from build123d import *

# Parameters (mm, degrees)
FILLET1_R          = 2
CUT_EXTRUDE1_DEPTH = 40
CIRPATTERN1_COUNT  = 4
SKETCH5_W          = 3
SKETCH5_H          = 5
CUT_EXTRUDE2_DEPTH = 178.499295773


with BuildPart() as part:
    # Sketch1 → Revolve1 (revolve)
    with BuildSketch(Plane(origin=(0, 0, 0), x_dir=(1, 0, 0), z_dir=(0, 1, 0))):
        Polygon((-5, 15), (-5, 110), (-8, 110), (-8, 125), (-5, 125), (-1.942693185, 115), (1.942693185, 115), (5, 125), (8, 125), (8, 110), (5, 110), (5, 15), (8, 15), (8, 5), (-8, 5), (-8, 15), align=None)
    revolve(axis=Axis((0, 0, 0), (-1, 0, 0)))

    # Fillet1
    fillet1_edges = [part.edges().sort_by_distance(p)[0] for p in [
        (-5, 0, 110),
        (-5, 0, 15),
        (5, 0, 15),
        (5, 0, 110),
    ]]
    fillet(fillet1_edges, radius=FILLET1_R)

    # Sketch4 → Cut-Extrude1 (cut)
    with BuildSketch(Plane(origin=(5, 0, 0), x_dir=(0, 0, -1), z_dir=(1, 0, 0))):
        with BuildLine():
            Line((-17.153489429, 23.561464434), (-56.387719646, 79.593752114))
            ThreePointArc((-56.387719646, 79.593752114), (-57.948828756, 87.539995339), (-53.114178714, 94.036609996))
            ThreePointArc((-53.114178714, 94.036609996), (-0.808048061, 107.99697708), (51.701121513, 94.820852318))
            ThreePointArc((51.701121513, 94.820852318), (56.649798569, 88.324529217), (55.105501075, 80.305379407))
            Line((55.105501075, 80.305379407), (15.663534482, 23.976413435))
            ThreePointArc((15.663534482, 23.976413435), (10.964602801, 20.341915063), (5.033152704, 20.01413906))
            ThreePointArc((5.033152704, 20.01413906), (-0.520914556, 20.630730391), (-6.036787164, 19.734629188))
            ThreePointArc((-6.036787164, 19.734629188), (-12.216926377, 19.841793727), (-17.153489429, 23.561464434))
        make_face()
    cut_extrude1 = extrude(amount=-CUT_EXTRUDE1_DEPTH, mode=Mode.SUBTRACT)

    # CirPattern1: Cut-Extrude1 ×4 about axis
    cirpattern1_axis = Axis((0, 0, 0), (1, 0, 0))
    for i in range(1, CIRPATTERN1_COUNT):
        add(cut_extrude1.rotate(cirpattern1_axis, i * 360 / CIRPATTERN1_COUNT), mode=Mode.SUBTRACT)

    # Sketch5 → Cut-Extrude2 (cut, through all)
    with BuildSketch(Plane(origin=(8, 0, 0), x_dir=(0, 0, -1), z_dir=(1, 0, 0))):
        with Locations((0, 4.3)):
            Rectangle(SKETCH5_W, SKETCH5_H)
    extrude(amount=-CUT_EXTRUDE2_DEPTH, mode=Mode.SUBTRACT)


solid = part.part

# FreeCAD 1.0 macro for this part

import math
import FreeCAD as App
import Part
import Sketcher
Q = App.Units.Quantity


def edges_at(feature, points):
    """Names of the edges that pass closest to the given points."""
    edges = feature.Shape.Edges
    near = lambda p: min(range(len(edges)), key=lambda i: edges[i].distToShape(Part.Vertex(*p))[0])
    return sorted({f"Edge{near(p) + 1}" for p in points})


def add_polygon(sketch, points):
    """Adds a closed chain of lines whose ends are joined by coincident constraints."""
    first, n = sketch.GeometryCount, len(points)
    for a, b in zip(points, points[1:] + points[:1]):
        sketch.addGeometry(Part.LineSegment(App.Vector(*a, 0), App.Vector(*b, 0)), False)
    for i in range(n):
        sketch.addConstraint(Sketcher.Constraint("Coincident", first + i, 2, first + (i + 1) % n, 1))

doc = App.newDocument("Part")
params = doc.addObject("Spreadsheet::Sheet", "Params")
for row, (alias, value) in enumerate([
    ("sketch1_width", "3 mm"),
    ("sketch1_width2", "16 mm"),
    ("sketch1_height", "95 mm"),
    ("sketch1_height2", "10 mm"),
    ("sketch1_height3", "15 mm"),
    ("revolution_angle", "360 deg"),
    ("fillet_radius", "2 mm"),
    ("sketch2_radius", "10 mm"),
    ("sketch2_radius2", "108 mm"),
    ("pocket1_length", "40 mm"),
    ("sketch3_width", "5 mm"),
    ("sketch3_height", "3 mm"),
], start=1):
    params.set(f"A{row}", alias)
    params.set(f"B{row}", "=" + value)
    params.setAlias(f"B{row}", alias)

body = doc.addObject("PartDesign::Body", "Body")

# Sketch on XZ plane
sketch1 = doc.addObject("Sketcher::SketchObject", "Sketch")
body.addObject(sketch1)
sketch1.AttachmentSupport = (doc.XZ_Plane, [""])
sketch1.MapMode = "FlatFace"
add_polygon(sketch1, [(-5, -110), (-5, -15), (-8, -15), (-8, -5), (8, -5), (8, -15), (5, -15), (5, -110), (8, -110), (8, -125), (5, -125), (1.9, -115), (-1.9, -115), (-5, -125), (-8, -125), (-8, -110)])  # lines 0-15
sketch1.addConstraint([
    Sketcher.Constraint("Vertical", 0),
    Sketcher.Constraint("Horizontal", 1),
    Sketcher.Constraint("Vertical", 2),
    Sketcher.Constraint("Horizontal", 3),
    Sketcher.Constraint("Vertical", 4),
    Sketcher.Constraint("Horizontal", 5),
    Sketcher.Constraint("Vertical", 6),
    Sketcher.Constraint("Horizontal", 7),
    Sketcher.Constraint("Vertical", 8),
    Sketcher.Constraint("Horizontal", 9),
    Sketcher.Constraint("Horizontal", 11),
    Sketcher.Constraint("Horizontal", 13),
    Sketcher.Constraint("Vertical", 14),
    Sketcher.Constraint("Horizontal", 15),
    Sketcher.Constraint("Symmetric", 1, 2, 4, 2, -2),
    Sketcher.Constraint("Symmetric", 9, 2, 12, 2, -2),
    Sketcher.Constraint("Symmetric", 7, 2, 14, 2, -2),
    Sketcher.Constraint("Vertical", 4, 2, 7, 2),
    Sketcher.Constraint("Vertical", 6, 2, 9, 2),
    Sketcher.Constraint("Vertical", 0, 2, 12, 2),
    Sketcher.Constraint("Equal", 10, 12),
    Sketcher.Constraint("DistanceX", 1, 2, 1, 1, Q("3 mm")),
    Sketcher.Constraint("DistanceX", 3, 1, 3, 2, Q("16 mm")),
    Sketcher.Constraint("DistanceY", 0, 1, 0, 2, Q("95 mm")),
    Sketcher.Constraint("DistanceY", 2, 1, 2, 2, Q("10 mm")),
    Sketcher.Constraint("DistanceY", 8, 2, 8, 1, Q("15 mm")),
    Sketcher.Constraint("Angle", 10, Q("107 deg")),
    Sketcher.Constraint("DistanceY", 0, 2, -1, 1, Q("15 mm")),
    Sketcher.Constraint("DistanceY", 10, 2, -1, 1, Q("115 mm")),
])
sketch1.setExpression("Constraints[37]", "Params.sketch1_width")
sketch1.setExpression("Constraints[38]", "Params.sketch1_width2")
sketch1.setExpression("Constraints[39]", "Params.sketch1_height")
sketch1.setExpression("Constraints[40]", "Params.sketch1_height2")
sketch1.setExpression("Constraints[41]", "Params.sketch1_height3")
revolution = doc.addObject("PartDesign::Revolution", "Revolution")
body.addObject(revolution)
revolution.Profile = sketch1
revolution.ReferenceAxis = (sketch1, ["H_Axis"])
revolution.setExpression("Angle", "Params.revolution_angle")
doc.recompute()

fillet = doc.addObject("PartDesign::Fillet", "Fillet")
body.addObject(fillet)
fillet.Base = (revolution, edges_at(revolution, [
    (-5, 0, 110),
    (-5, 0, 15),
    (5, 0, 15),
    (5, 0, 110),
]))
fillet.setExpression("Radius", "Params.fillet_radius")

# Sketch on YZ plane
sketch2 = doc.addObject("Sketcher::SketchObject", "Sketch001")
body.addObject(sketch2)
sketch2.AttachmentSupport = (doc.YZ_Plane, [""])
sketch2.MapMode = "FlatFace"
sketch2.AttachmentOffset = App.Placement(App.Vector(0, 0, 5), App.Rotation())
sketch2.addGeometry([
    Part.LineSegment(App.Vector(80, 56, 0), App.Vector(24, 17, 0)),  # 0
    Part.ArcOfCircle(Part.Circle(App.Vector(29, 9, 0), App.Vector(0, 0, 1), 10), math.radians(125), math.radians(197)),  # 1
    Part.ArcOfCircle(Part.Circle(App.Vector(0, 0, 0), App.Vector(0, 0, 1), 21), math.radians(-14), math.radians(17)),  # 2
    Part.ArcOfCircle(Part.Circle(App.Vector(30, -7, 0), App.Vector(0, 0, 1), 10), math.radians(166), math.radians(235)),  # 3
    Part.LineSegment(App.Vector(24, -16, 0), App.Vector(80, -55, 0)),  # 4
    Part.ArcOfCircle(Part.Circle(App.Vector(86, -47, 0), App.Vector(0, 0, 1), 10), math.radians(-125), math.radians(-29)),  # 5
    Part.ArcOfCircle(Part.Circle(App.Vector(0, 0, 0), App.Vector(0, 0, 1), 108), math.radians(-29), math.radians(29)),  # 6
    Part.ArcOfCircle(Part.Circle(App.Vector(85, 48, 0), App.Vector(0, 0, 1), 10), math.radians(29), math.radians(125)),  # 7
], False)
sketch2.addConstraint([
    Sketcher.Constraint("Tangent", 0, 2, 1, 1),
    Sketcher.Constraint("Tangent", 1, 2, 2, 2),
    Sketcher.Constraint("Tangent", 2, 1, 3, 1),
    Sketcher.Constraint("Tangent", 3, 2, 4, 1),
    Sketcher.Constraint("Tangent", 4, 2, 5, 1),
    Sketcher.Constraint("Tangent", 5, 2, 6, 1),
    Sketcher.Constraint("Tangent", 6, 2, 7, 1),
    Sketcher.Constraint("Tangent", 7, 2, 0, 1),
    Sketcher.Constraint("Coincident", 2, 3, -1, 1),
    Sketcher.Constraint("Coincident", 6, 3, -1, 1),
    Sketcher.Constraint("Equal", 1, 3),
    Sketcher.Constraint("Equal", 3, 5),
    Sketcher.Constraint("Equal", 5, 7),
    Sketcher.Constraint("Radius", 1, Q("10 mm")),
    Sketcher.Constraint("Radius", 6, Q("108 mm")),
    Sketcher.Constraint("Angle", 0, Q("-145 deg")),
    Sketcher.Constraint("Angle", 4, Q("-35 deg")),
    Sketcher.Constraint("Radius", 2, Q("20.637306 mm")),
    Sketcher.Constraint("DistanceY", -1, 1, 7, 3, Q("48.196199 mm")),
    Sketcher.Constraint("DistanceY", 4, 2, -1, 1, Q("55.105501 mm")),
])
sketch2.setExpression("Constraints[13]", "Params.sketch2_radius")
sketch2.setExpression("Constraints[14]", "Params.sketch2_radius2")
pocket1 = doc.addObject("PartDesign::Pocket", "Pocket")
body.addObject(pocket1)
pocket1.Profile = sketch2
pocket1.setExpression("Length", "Params.pocket1_length")
doc.recompute()

polarpattern = doc.addObject("PartDesign::PolarPattern", "PolarPattern")
body.addObject(polarpattern)
polarpattern.Originals = [pocket1]
polarpattern.Axis = (doc.X_Axis, [""])
polarpattern.Angle = 360
polarpattern.Occurrences = 4
body.Tip = polarpattern

# Sketch on YZ plane
sketch3 = doc.addObject("Sketcher::SketchObject", "Sketch002")
body.addObject(sketch3)
sketch3.AttachmentSupport = (doc.YZ_Plane, [""])
sketch3.MapMode = "FlatFace"
sketch3.AttachmentOffset = App.Placement(App.Vector(0, 0, 8), App.Rotation())
add_polygon(sketch3, [(6.8, 1.5), (1.8, 1.5), (1.8, -1.5), (6.8, -1.5)])  # lines 0-3
sketch3.addConstraint([
    Sketcher.Constraint("Horizontal", 0),
    Sketcher.Constraint("Vertical", 1),
    Sketcher.Constraint("Horizontal", 2),
    Sketcher.Constraint("Vertical", 3),
    Sketcher.Constraint("DistanceX", 0, 2, 0, 1, Q("5 mm")),
    Sketcher.Constraint("DistanceY", 1, 2, 1, 1, Q("3 mm")),
    Sketcher.Constraint("DistanceX", -1, 1, 0, 2, Q("1.8 mm")),
    Sketcher.Constraint("DistanceY", -1, 1, 0, 2, Q("1.5 mm")),
])
sketch3.setExpression("Constraints[8]", "Params.sketch3_width")
sketch3.setExpression("Constraints[9]", "Params.sketch3_height")
pocket2 = doc.addObject("PartDesign::Pocket", "Pocket001")
body.addObject(pocket2)
pocket2.Profile = sketch3
pocket2.Type = "ThroughAll"

doc.recompute()
